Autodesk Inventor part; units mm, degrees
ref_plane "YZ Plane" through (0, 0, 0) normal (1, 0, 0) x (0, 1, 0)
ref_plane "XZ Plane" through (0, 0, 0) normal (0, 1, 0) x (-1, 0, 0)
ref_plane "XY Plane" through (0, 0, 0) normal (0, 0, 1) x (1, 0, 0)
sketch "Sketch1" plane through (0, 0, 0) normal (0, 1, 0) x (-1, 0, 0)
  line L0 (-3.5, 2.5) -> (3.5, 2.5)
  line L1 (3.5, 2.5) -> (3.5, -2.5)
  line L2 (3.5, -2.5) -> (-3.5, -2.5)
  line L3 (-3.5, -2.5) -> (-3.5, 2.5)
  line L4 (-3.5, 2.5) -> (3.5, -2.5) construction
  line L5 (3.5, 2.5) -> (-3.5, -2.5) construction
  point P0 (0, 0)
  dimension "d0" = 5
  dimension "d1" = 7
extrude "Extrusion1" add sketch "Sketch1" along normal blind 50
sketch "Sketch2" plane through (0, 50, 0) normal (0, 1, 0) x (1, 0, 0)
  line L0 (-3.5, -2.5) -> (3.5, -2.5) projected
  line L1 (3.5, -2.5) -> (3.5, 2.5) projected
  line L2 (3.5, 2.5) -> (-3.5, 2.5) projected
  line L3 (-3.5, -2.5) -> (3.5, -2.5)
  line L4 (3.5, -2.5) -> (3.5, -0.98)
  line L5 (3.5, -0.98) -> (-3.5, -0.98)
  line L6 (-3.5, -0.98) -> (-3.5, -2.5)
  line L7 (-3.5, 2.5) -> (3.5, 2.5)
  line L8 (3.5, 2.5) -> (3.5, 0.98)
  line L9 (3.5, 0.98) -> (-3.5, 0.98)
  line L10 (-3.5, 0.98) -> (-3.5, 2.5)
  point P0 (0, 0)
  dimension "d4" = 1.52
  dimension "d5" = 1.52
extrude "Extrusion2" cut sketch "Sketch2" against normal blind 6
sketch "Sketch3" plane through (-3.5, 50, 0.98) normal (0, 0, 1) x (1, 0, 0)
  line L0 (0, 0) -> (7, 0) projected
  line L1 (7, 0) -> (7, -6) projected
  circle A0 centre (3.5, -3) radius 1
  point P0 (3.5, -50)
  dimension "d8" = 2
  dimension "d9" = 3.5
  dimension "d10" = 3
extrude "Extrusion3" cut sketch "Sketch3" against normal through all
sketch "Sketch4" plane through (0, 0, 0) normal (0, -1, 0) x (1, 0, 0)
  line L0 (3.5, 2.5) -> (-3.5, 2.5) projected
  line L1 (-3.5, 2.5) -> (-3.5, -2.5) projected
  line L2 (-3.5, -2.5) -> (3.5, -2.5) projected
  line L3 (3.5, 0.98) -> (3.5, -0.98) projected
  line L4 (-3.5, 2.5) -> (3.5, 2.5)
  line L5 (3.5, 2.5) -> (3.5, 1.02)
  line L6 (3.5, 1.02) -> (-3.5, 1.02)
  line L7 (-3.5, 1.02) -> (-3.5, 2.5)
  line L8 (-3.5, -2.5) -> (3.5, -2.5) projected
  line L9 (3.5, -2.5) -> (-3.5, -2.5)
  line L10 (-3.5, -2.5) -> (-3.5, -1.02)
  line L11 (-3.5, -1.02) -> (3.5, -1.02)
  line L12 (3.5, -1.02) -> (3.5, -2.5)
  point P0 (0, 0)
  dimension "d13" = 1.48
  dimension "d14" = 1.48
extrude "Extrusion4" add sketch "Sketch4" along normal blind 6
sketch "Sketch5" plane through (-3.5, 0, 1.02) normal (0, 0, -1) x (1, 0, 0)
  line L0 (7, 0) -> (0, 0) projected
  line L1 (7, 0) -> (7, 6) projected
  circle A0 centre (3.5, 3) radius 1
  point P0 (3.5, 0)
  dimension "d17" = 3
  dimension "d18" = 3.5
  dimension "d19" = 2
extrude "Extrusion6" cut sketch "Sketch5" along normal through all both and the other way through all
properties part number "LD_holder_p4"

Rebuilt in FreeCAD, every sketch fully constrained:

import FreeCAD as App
import Part
import Sketcher

V = App.Vector

doc = App.newDocument("Part")
params = doc.addObject("Spreadsheet::Sheet", "Params")
for row, (alias, value) in enumerate([
    ("sketch1_width", "7 mm"),
    ("sketch1_height", "5 mm"),
    ("pad1_length", "50 mm"),
    ("sketch2_height", "1.52 mm"),
    ("sketch2_width", "7 mm"),
    ("pocket1_length", "6 mm"),
    ("sketch3_diameter", "2 mm"),
    ("sketch4_height", "1.48 mm"),
    ("sketch4_width", "7 mm"),
    ("pad2_length", "6 mm"),
    ("sketch5_diameter", "2 mm"),
], start=1):
    params.set(f"A{row}", alias)
    params.set(f"B{row}", "=" + value)
    params.setAlias(f"B{row}", alias)

body = doc.addObject("PartDesign::Body", "Body")

sketch1 = body.newObject("Sketcher::SketchObject", "Sketch")
sketch1.AttachmentSupport = (doc.getObject("XZ_Plane"), [""])
sketch1.MapMode = "FlatFace"
sketch1.addGeometry([
    Part.LineSegment(V(-4, 2, 0), V(4, 2, 0)),
    Part.LineSegment(V(4, 2, 0), V(4, -2, 0)),
    Part.LineSegment(V(4, -2, 0), V(-4, -2, 0)),
    Part.LineSegment(V(-4, -2, 0), V(-4, 2, 0)),
], False)
sketch1.addConstraint([
    Sketcher.Constraint("Coincident", 0, 2, 1, 1),
    Sketcher.Constraint("Coincident", 1, 2, 2, 1),
    Sketcher.Constraint("Coincident", 2, 2, 3, 1),
    Sketcher.Constraint("Coincident", 3, 2, 0, 1),
    Sketcher.Constraint("Horizontal", 0),
    Sketcher.Constraint("Vertical", 1),
    Sketcher.Constraint("Horizontal", 2),
    Sketcher.Constraint("Vertical", 3),
    Sketcher.Constraint("Symmetric", 0, 2, 2, 2, -1, 1),
    Sketcher.Constraint("DistanceX", 0, 1, 0, 2, 7.0),
    Sketcher.Constraint("DistanceY", 1, 2, 1, 1, 5.0),
])
sketch1.setExpression("Constraints[9]", "Params.sketch1_width")
sketch1.setExpression("Constraints[10]", "Params.sketch1_height")
pad1 = body.newObject("PartDesign::Pad", "Pad")
pad1.Profile = sketch1
pad1.setExpression("Length", "Params.pad1_length")
pad1.Reversed = True

sketch2 = body.newObject("Sketcher::SketchObject", "Sketch001")
sketch2.AttachmentSupport = (doc.getObject("XZ_Plane"), [""])
sketch2.MapMode = "FlatFace"
sketch2.AttachmentOffset = App.Placement(V(0, 0, -50), App.Rotation())
sketch2.addGeometry([
    Part.LineSegment(V(-3.5, 1, 0), V(-3.5, 2.5, 0)),
    Part.LineSegment(V(-3.5, 2.5, 0), V(3.5, 2.5, 0)),
    Part.LineSegment(V(3.5, 2.5, 0), V(3.5, 1, 0)),
    Part.LineSegment(V(3.5, 1, 0), V(-3.5, 1, 0)),
    Part.LineSegment(V(-3.5, -1, 0), V(3.5, -1, 0)),
    Part.LineSegment(V(3.5, -1, 0), V(3.5, -2.5, 0)),
    Part.LineSegment(V(3.5, -2.5, 0), V(-3.5, -2.5, 0)),
    Part.LineSegment(V(-3.5, -2.5, 0), V(-3.5, -1, 0)),
], False)
sketch2.addConstraint([
    Sketcher.Constraint("Coincident", 0, 2, 1, 1),
    Sketcher.Constraint("Coincident", 1, 2, 2, 1),
    Sketcher.Constraint("Coincident", 2, 2, 3, 1),
    Sketcher.Constraint("Coincident", 3, 2, 0, 1),
    Sketcher.Constraint("Coincident", 4, 2, 5, 1),
    Sketcher.Constraint("Coincident", 5, 2, 6, 1),
    Sketcher.Constraint("Coincident", 6, 2, 7, 1),
    Sketcher.Constraint("Coincident", 7, 2, 4, 1),
    Sketcher.Constraint("Vertical", 0),
    Sketcher.Constraint("Horizontal", 1),
    Sketcher.Constraint("Vertical", 2),
    Sketcher.Constraint("Horizontal", 3),
    Sketcher.Constraint("Horizontal", 4),
    Sketcher.Constraint("Vertical", 5),
    Sketcher.Constraint("Horizontal", 6),
    Sketcher.Constraint("Vertical", 7),
    Sketcher.Constraint("Symmetric", 3, 2, 4, 2, -1, 1),
    Sketcher.Constraint("Symmetric", 1, 2, 6, 2, -1, 1),
    Sketcher.Constraint("Vertical", 2, 2, 4, 2),
    Sketcher.Constraint("DistanceY", 0, 1, 0, 2, 1.52),
    Sketcher.Constraint("DistanceX", 1, 1, 1, 2, 7.0),
    Sketcher.Constraint("DistanceY", 5, 2, 1, 2, 5.0),
])
sketch2.setExpression("Constraints[19]", "Params.sketch2_height")
sketch2.setExpression("Constraints[20]", "Params.sketch2_width")
pocket1 = body.newObject("PartDesign::Pocket", "Pocket")
pocket1.Profile = sketch2
pocket1.setExpression("Length", "Params.pocket1_length")
pocket1.Reversed = True

sketch3 = body.newObject("Sketcher::SketchObject", "Sketch002")
sketch3.AttachmentSupport = (doc.getObject("XY_Plane"), [""])
sketch3.MapMode = "FlatFace"
sketch3.AttachmentOffset = App.Placement(V(0, 0, 0.98), App.Rotation())
sketch3.addGeometry(Part.Circle(V(0, 47, 0), V(0, 0, 1), 1), False)
sketch3.addConstraint([
    Sketcher.Constraint("PointOnObject", 0, 3, -2),
    Sketcher.Constraint("Diameter", 0, 2.0),
    Sketcher.Constraint("DistanceY", -1, 1, 0, 3, 47.0),
])
sketch3.setExpression("Constraints[1]", "Params.sketch3_diameter")
pocket2 = body.newObject("PartDesign::Pocket", "Pocket001")
pocket2.Profile = sketch3
pocket2.Type = "ThroughAll"

sketch4 = body.newObject("Sketcher::SketchObject", "Sketch003")
sketch4.AttachmentSupport = (doc.getObject("XZ_Plane"), [""])
sketch4.MapMode = "FlatFace"
sketch4.addGeometry([
    Part.LineSegment(V(3.5, 1, 0), V(3.5, 2.5, 0)),
    Part.LineSegment(V(3.5, 2.5, 0), V(-3.5, 2.5, 0)),
    Part.LineSegment(V(-3.5, 2.5, 0), V(-3.5, 1, 0)),
    Part.LineSegment(V(-3.5, 1, 0), V(3.5, 1, 0)),
    Part.LineSegment(V(3.5, -1, 0), V(-3.5, -1, 0)),
    Part.LineSegment(V(-3.5, -1, 0), V(-3.5, -2.5, 0)),
    Part.LineSegment(V(-3.5, -2.5, 0), V(3.5, -2.5, 0)),
    Part.LineSegment(V(3.5, -2.5, 0), V(3.5, -1, 0)),
], False)
sketch4.addConstraint([
    Sketcher.Constraint("Coincident", 0, 2, 1, 1),
    Sketcher.Constraint("Coincident", 1, 2, 2, 1),
    Sketcher.Constraint("Coincident", 2, 2, 3, 1),
    Sketcher.Constraint("Coincident", 3, 2, 0, 1),
    Sketcher.Constraint("Coincident", 4, 2, 5, 1),
    Sketcher.Constraint("Coincident", 5, 2, 6, 1),
    Sketcher.Constraint("Coincident", 6, 2, 7, 1),
    Sketcher.Constraint("Coincident", 7, 2, 4, 1),
    Sketcher.Constraint("Vertical", 0),
    Sketcher.Constraint("Horizontal", 1),
    Sketcher.Constraint("Vertical", 2),
    Sketcher.Constraint("Horizontal", 3),
    Sketcher.Constraint("Horizontal", 4),
    Sketcher.Constraint("Vertical", 5),
    Sketcher.Constraint("Horizontal", 6),
    Sketcher.Constraint("Vertical", 7),
    Sketcher.Constraint("Symmetric", 3, 2, 4, 2, -1, 1),
    Sketcher.Constraint("Symmetric", 1, 2, 6, 2, -1, 1),
    Sketcher.Constraint("Vertical", 2, 2, 4, 2),
    Sketcher.Constraint("DistanceY", 0, 1, 0, 2, 1.48),
    Sketcher.Constraint("DistanceX", 1, 2, 1, 1, 7.0),
    Sketcher.Constraint("DistanceY", 5, 2, 1, 2, 5.0),
])
sketch4.setExpression("Constraints[19]", "Params.sketch4_height")
sketch4.setExpression("Constraints[20]", "Params.sketch4_width")
pad2 = body.newObject("PartDesign::Pad", "Pad001")
pad2.Profile = sketch4
pad2.setExpression("Length", "Params.pad2_length")

sketch5 = body.newObject("Sketcher::SketchObject", "Sketch004")
sketch5.AttachmentSupport = (doc.getObject("XY_Plane"), [""])
sketch5.MapMode = "FlatFace"
sketch5.AttachmentOffset = App.Placement(V(0, 0, 1.02), App.Rotation())
sketch5.addGeometry(Part.Circle(V(0, -3, 0), V(0, 0, 1), 1), False)
sketch5.addConstraint([
    Sketcher.Constraint("PointOnObject", 0, 3, -2),
    Sketcher.Constraint("Diameter", 0, 2.0),
    Sketcher.Constraint("DistanceY", 0, 3, -1, 1, 3.0),
])
sketch5.setExpression("Constraints[1]", "Params.sketch5_diameter")
pocket3 = body.newObject("PartDesign::Pocket", "Pocket002")
pocket3.Profile = sketch5
pocket3.Type = "ThroughAll"
pocket3.Midplane = True

doc.recompute()
